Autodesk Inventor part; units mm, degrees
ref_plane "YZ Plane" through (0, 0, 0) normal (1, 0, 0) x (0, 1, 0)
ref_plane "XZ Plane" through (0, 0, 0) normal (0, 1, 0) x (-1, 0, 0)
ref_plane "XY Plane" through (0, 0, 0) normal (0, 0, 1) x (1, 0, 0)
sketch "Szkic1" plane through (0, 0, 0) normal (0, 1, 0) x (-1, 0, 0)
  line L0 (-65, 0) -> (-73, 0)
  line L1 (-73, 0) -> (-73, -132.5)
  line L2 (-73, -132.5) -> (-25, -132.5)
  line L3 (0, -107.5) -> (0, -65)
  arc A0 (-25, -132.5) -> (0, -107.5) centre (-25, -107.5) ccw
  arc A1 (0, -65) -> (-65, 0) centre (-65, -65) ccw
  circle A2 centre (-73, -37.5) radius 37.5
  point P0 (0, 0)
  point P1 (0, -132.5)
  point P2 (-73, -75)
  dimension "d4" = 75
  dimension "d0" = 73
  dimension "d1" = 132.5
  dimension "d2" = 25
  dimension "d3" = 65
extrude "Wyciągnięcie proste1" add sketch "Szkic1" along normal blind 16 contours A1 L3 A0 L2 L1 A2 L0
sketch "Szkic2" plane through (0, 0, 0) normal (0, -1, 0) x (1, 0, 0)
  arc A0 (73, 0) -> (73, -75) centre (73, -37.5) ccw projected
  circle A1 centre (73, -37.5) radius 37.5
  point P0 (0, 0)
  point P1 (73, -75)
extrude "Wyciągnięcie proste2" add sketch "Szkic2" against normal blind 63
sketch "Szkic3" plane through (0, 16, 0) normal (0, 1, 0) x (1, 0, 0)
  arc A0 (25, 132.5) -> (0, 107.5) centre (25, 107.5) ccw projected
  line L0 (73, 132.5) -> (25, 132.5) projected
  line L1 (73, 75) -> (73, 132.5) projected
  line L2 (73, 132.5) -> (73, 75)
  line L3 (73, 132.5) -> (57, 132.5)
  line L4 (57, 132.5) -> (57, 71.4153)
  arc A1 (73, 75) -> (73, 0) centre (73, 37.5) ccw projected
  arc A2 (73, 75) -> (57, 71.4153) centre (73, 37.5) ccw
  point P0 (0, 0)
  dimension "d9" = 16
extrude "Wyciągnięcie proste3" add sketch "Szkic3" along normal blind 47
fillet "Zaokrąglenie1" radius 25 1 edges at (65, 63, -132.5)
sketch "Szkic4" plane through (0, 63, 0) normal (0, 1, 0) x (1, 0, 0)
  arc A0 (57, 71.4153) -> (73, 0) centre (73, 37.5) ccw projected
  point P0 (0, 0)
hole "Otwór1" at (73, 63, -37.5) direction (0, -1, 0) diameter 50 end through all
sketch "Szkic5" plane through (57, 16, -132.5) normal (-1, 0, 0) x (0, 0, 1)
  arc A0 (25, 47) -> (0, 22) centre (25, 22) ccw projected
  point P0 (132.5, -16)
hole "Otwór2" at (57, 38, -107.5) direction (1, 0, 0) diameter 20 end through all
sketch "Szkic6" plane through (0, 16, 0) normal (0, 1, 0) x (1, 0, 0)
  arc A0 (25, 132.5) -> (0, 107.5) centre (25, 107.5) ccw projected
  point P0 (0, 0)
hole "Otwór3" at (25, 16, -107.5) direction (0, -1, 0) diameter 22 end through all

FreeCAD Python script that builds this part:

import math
import FreeCAD as App
import Part
import Sketcher

V = App.Vector
Q = App.Units.Quantity


def edges_at(feature, points):
    """Names of the edges that pass closest to the given points."""
    edges = feature.Shape.Edges
    near = lambda p: min(range(len(edges)), key=lambda i: edges[i].distToShape(Part.Vertex(*p))[0])
    return sorted({f"Edge{near(p) + 1}" for p in points})

doc = App.newDocument("Part")
params = doc.addObject("Spreadsheet::Sheet", "Params")
for row, (alias, value) in enumerate([
    ("sketch1_radius", "65 mm"),
    ("sketch1_radius2", "25 mm"),
    ("sketch1_radius3", "37.5 mm"),
    ("pad1_length", "16 mm"),
    ("sketch2_diameter", "75 mm"),
    ("pad2_length", "63 mm"),
    ("sketch3_width", "16 mm"),
    ("sketch3_radius", "37.5 mm"),
    ("sketch3_height", "57.5 mm"),
    ("pad3_length", "47 mm"),
    ("fillet_radius", "25 mm"),
    ("sketch4_diameter", "50 mm"),
    ("hole_diameter", "50 mm"),
    ("sketch5_diameter", "20 mm"),
    ("hole2_diameter", "20 mm"),
    ("sketch6_diameter", "22 mm"),
    ("hole3_diameter", "22 mm"),
], start=1):
    params.set(f"A{row}", alias)
    params.set(f"B{row}", "=" + value)
    params.setAlias(f"B{row}", alias)

body = doc.addObject("PartDesign::Body", "Body")

# Sketch on XZ plane
sketch1 = body.newObject("Sketcher::SketchObject", "Sketch")
sketch1.AttachmentSupport = (doc.getObject("XZ_Plane"), [""])
sketch1.MapMode = "FlatFace"
sketch1.addGeometry([
    Part.ArcOfCircle(Part.Circle(V(65, -65, 0), V(0, 0, 1), 65), math.radians(90), math.radians(180)),  # 0
    Part.LineSegment(V(65, 0, 0), V(73, 0, 0)),  # 1
    Part.ArcOfCircle(Part.Circle(V(73, -38, 0), V(0, 0, 1), 38), math.radians(90), math.radians(270)),  # 2
    Part.LineSegment(V(73, -75, 0), V(73, -132, 0)),  # 3
    Part.LineSegment(V(73, -132, 0), V(25, -132, 0)),  # 4
    Part.ArcOfCircle(Part.Circle(V(25, -108, 0), V(0, 0, 1), 25), math.radians(180), math.radians(270)),  # 5
    Part.LineSegment(V(0, -108, 0), V(0, -65, 0)),  # 6
], False)
sketch1.addConstraint([
    Sketcher.Constraint("Tangent", 0, 1, 1, 1),
    Sketcher.Constraint("Tangent", 1, 2, 2, 1),
    Sketcher.Constraint("Coincident", 2, 2, 3, 1),
    Sketcher.Constraint("Coincident", 3, 2, 4, 1),
    Sketcher.Constraint("Tangent", 4, 2, 5, 2),
    Sketcher.Constraint("Tangent", 5, 1, 6, 1),
    Sketcher.Constraint("Tangent", 6, 2, 0, 2),
    Sketcher.Constraint("Horizontal", 1),
    Sketcher.Constraint("Vertical", 3),
    Sketcher.Constraint("Horizontal", 4),
    Sketcher.Constraint("Vertical", 6),
    Sketcher.Constraint("PointOnObject", 0, 1, -1),
    Sketcher.Constraint("PointOnObject", 5, 1, -2),
    Sketcher.Constraint("Vertical", 1, 2, 2, 2),
    Sketcher.Constraint("Radius", 0, Q("65 mm")),
    Sketcher.Constraint("Radius", 5, Q("25 mm")),
    Sketcher.Constraint("Radius", 2, Q("37.5 mm")),
    Sketcher.Constraint("DistanceX", -1, 1, 2, 3, Q("73 mm")),
    Sketcher.Constraint("DistanceY", 3, 2, -1, 1, Q("132.5 mm")),
])
sketch1.setExpression("Constraints[14]", "Params.sketch1_radius")
sketch1.setExpression("Constraints[15]", "Params.sketch1_radius2")
sketch1.setExpression("Constraints[16]", "Params.sketch1_radius3")
pad1 = body.newObject("PartDesign::Pad", "Pad")
pad1.Profile = sketch1
pad1.setExpression("Length", "Params.pad1_length")
pad1.Reversed = True

# Sketch on XZ plane
sketch2 = body.newObject("Sketcher::SketchObject", "Sketch001")
sketch2.AttachmentSupport = (doc.getObject("XZ_Plane"), [""])
sketch2.MapMode = "FlatFace"
sketch2.addGeometry(Part.Circle(V(73, -38, 0), V(0, 0, 1), 38), False)
sketch2.addConstraint([
    Sketcher.Constraint("Diameter", 0, Q("75 mm")),
    Sketcher.Constraint("DistanceX", -1, 1, 0, 3, Q("73 mm")),
    Sketcher.Constraint("DistanceY", 0, 3, -1, 1, Q("37.5 mm")),
])
sketch2.setExpression("Constraints[0]", "Params.sketch2_diameter")
pad2 = body.newObject("PartDesign::Pad", "Pad001")
pad2.Profile = sketch2
pad2.setExpression("Length", "Params.pad2_length")
pad2.Reversed = True

# Sketch on XZ plane
sketch3 = body.newObject("Sketcher::SketchObject", "Sketch002")
sketch3.AttachmentSupport = (doc.getObject("XZ_Plane"), [""])
sketch3.MapMode = "FlatFace"
sketch3.AttachmentOffset = App.Placement(V(0, 0, -16), App.Rotation())
sketch3.addGeometry([
    Part.LineSegment(V(73, -75, 0), V(73, -132, 0)),
    Part.LineSegment(V(73, -132, 0), V(57, -132, 0)),
    Part.LineSegment(V(57, -132, 0), V(57, -71, 0)),
    Part.ArcOfCircle(Part.Circle(V(73, -38, 0), V(0, 0, 1), 38), math.radians(-115), math.radians(-90)),
], False)
sketch3.addConstraint([
    Sketcher.Constraint("Coincident", 0, 2, 1, 1),
    Sketcher.Constraint("Coincident", 1, 2, 2, 1),
    Sketcher.Constraint("Coincident", 2, 2, 3, 1),
    Sketcher.Constraint("Coincident", 3, 2, 0, 1),
    Sketcher.Constraint("Vertical", 0),
    Sketcher.Constraint("Horizontal", 1),
    Sketcher.Constraint("Vertical", 2),
    Sketcher.Constraint("Vertical", 3, 3, 0, 2),
    Sketcher.Constraint("DistanceX", 1, 2, 1, 1, Q("16 mm")),
    Sketcher.Constraint("Radius", 3, Q("37.5 mm")),
    Sketcher.Constraint("DistanceY", 0, 2, 0, 1, Q("57.5 mm")),
    Sketcher.Constraint("DistanceX", -1, 1, 3, 3, Q("73 mm")),
    Sketcher.Constraint("DistanceY", 3, 2, -1, 1, Q("75 mm")),
])
sketch3.setExpression("Constraints[8]", "Params.sketch3_width")
sketch3.setExpression("Constraints[9]", "Params.sketch3_radius")
sketch3.setExpression("Constraints[10]", "Params.sketch3_height")
pad3 = body.newObject("PartDesign::Pad", "Pad002")
pad3.Profile = sketch3
pad3.setExpression("Length", "Params.pad3_length")
pad3.Reversed = True
doc.recompute()

fillet = body.newObject("PartDesign::Fillet", "Fillet")
fillet.Base = (pad3, edges_at(pad3, [(65, 63, -132.5)]))
fillet.setExpression("Radius", "Params.fillet_radius")

# Sketch on XZ plane
sketch4 = body.newObject("Sketcher::SketchObject", "Sketch003")
sketch4.AttachmentSupport = (doc.getObject("XZ_Plane"), [""])
sketch4.MapMode = "FlatFace"
sketch4.AttachmentOffset = App.Placement(V(0, 0, -63), App.Rotation())
sketch4.addGeometry(Part.Circle(V(73, -38, 0), V(0, 0, 1), 25), False)
sketch4.addConstraint([
    Sketcher.Constraint("Diameter", 0, Q("50 mm")),
    Sketcher.Constraint("DistanceX", -1, 1, 0, 3, Q("73 mm")),
    Sketcher.Constraint("DistanceY", 0, 3, -1, 1, Q("37.5 mm")),
])
sketch4.setExpression("Constraints[0]", "Params.sketch4_diameter")
doc.recompute()
hole = body.newObject("PartDesign::Hole", "Hole")
hole.Profile = sketch4
hole.ThreadType = "None"
hole.setExpression("Diameter", "Params.hole_diameter")
hole.DepthType = "ThroughAll"
hole.Reversed = True

# Sketch on YZ plane
sketch5 = body.newObject("Sketcher::SketchObject", "Sketch004")
sketch5.AttachmentSupport = (doc.getObject("YZ_Plane"), [""])
sketch5.MapMode = "FlatFace"
sketch5.AttachmentOffset = App.Placement(V(0, 0, 57), App.Rotation())
sketch5.addGeometry(Part.Circle(V(38, -108, 0), V(0, 0, 1), 10), False)
sketch5.addConstraint([
    Sketcher.Constraint("Diameter", 0, Q("20 mm")),
    Sketcher.Constraint("DistanceX", -1, 1, 0, 3, Q("38 mm")),
    Sketcher.Constraint("DistanceY", 0, 3, -1, 1, Q("107.5 mm")),
])
sketch5.setExpression("Constraints[0]", "Params.sketch5_diameter")
doc.recompute()
hole2 = body.newObject("PartDesign::Hole", "Hole001")
hole2.Profile = sketch5
hole2.ThreadType = "None"
hole2.setExpression("Diameter", "Params.hole2_diameter")
hole2.DepthType = "ThroughAll"
hole2.Reversed = True

# Sketch on XZ plane
sketch6 = body.newObject("Sketcher::SketchObject", "Sketch005")
sketch6.AttachmentSupport = (doc.getObject("XZ_Plane"), [""])
sketch6.MapMode = "FlatFace"
sketch6.AttachmentOffset = App.Placement(V(0, 0, -16), App.Rotation())
sketch6.addGeometry(Part.Circle(V(25, -108, 0), V(0, 0, 1), 11), False)
sketch6.addConstraint([
    Sketcher.Constraint("Diameter", 0, Q("22 mm")),
    Sketcher.Constraint("DistanceX", -1, 1, 0, 3, Q("25 mm")),
    Sketcher.Constraint("DistanceY", 0, 3, -1, 1, Q("107.5 mm")),
])
sketch6.setExpression("Constraints[0]", "Params.sketch6_diameter")
doc.recompute()
hole3 = body.newObject("PartDesign::Hole", "Hole002")
hole3.Profile = sketch6
hole3.ThreadType = "None"
hole3.setExpression("Diameter", "Params.hole3_diameter")
hole3.DepthType = "ThroughAll"
hole3.Reversed = True

doc.recompute()
